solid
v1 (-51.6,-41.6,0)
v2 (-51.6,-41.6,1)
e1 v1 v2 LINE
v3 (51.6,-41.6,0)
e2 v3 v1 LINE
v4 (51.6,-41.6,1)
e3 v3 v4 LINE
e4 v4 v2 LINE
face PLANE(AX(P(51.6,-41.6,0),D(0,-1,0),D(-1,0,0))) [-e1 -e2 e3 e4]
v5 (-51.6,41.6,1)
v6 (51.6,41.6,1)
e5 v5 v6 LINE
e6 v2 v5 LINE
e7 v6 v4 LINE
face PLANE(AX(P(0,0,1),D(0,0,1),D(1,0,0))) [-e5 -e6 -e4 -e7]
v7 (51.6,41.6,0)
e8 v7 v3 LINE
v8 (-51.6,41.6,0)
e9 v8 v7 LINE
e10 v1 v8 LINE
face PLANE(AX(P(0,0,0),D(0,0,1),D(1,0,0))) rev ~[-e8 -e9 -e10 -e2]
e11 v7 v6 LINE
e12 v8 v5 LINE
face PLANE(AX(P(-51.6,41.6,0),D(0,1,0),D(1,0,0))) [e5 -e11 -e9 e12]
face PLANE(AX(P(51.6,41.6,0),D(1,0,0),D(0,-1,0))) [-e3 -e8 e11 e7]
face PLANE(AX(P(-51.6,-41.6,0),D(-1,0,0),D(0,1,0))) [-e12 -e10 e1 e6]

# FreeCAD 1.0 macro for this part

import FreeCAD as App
import Part
import Sketcher

V = App.Vector

doc = App.newDocument("Part")
body = doc.addObject("PartDesign::Body", "Body")

sketch1 = doc.addObject("Sketcher::SketchObject", "Sketch")
body.addObject(sketch1)
sketch1.AttachmentSupport = (doc.XY_Plane, [""])
sketch1.MapMode = "FlatFace"
sketch1.addGeometry([
    Part.LineSegment(V(52, -42, 0), V(52, 42, 0)),
    Part.LineSegment(V(52, 42, 0), V(-52, 42, 0)),
    Part.LineSegment(V(-52, 42, 0), V(-52, -42, 0)),
    Part.LineSegment(V(-52, -42, 0), V(52, -42, 0)),
], False)
sketch1.addConstraint([
    Sketcher.Constraint("Coincident", 0, 2, 1, 1),
    Sketcher.Constraint("Coincident", 1, 2, 2, 1),
    Sketcher.Constraint("Coincident", 2, 2, 3, 1),
    Sketcher.Constraint("Coincident", 3, 2, 0, 1),
    Sketcher.Constraint("Vertical", 0),
    Sketcher.Constraint("Horizontal", 1),
    Sketcher.Constraint("Vertical", 2),
    Sketcher.Constraint("Horizontal", 3),
    Sketcher.Constraint("Symmetric", 0, 2, 2, 2, -1, 1),
    Sketcher.Constraint("DistanceX", 1, 2, 1, 1, 103.2),
    Sketcher.Constraint("DistanceY", 0, 1, 0, 2, 83.2),
])
pad1 = doc.addObject("PartDesign::Pad", "Pad")
body.addObject(pad1)
pad1.Profile = sketch1
pad1.Length = 1

doc.recompute()
